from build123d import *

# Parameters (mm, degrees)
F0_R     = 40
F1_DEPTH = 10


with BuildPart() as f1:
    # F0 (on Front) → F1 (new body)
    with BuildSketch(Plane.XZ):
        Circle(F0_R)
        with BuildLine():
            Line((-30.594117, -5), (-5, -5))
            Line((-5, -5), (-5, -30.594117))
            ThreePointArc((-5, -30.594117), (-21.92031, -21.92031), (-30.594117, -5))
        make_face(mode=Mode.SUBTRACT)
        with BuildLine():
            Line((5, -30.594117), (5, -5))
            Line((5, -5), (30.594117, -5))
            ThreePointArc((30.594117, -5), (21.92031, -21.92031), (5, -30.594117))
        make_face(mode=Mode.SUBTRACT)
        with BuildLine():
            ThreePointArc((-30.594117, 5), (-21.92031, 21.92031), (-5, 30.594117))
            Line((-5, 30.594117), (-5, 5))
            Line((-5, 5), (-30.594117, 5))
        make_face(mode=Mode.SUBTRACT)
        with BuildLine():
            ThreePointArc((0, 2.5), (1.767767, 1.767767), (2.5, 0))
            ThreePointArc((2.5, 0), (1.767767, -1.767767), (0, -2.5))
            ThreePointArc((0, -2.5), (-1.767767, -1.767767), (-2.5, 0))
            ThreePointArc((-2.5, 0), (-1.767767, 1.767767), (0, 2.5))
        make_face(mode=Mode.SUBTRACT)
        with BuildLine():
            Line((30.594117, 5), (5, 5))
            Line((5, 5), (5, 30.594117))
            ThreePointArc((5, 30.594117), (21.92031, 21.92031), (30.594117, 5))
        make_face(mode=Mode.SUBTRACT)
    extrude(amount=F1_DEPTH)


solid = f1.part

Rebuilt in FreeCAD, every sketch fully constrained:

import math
import FreeCAD as App
import Part
import Sketcher

V = App.Vector

doc = App.newDocument("Part")
body = doc.addObject("PartDesign::Body", "Body")

# Sketch on XZ plane
sketch1 = body.newObject("Sketcher::SketchObject", "Sketch")
sketch1.AttachmentSupport = (doc.getObject("XZ_Plane"), [""])
sketch1.MapMode = "FlatFace"
sketch1.addGeometry(Part.Circle(V(0, 0, 0), V(0, 0, 1), 40), False)
sketch1.addGeometry(Part.ArcOfCircle(Part.Circle(V(0.000001, 0.000001, 0), V(0, 0, 1), 31.000001), math.radians(-170.7182), math.radians(-99.2818)), False)
sketch1.addGeometry(Part.LineSegment(V(-30.594117, -5, 0), V(-5, -5, 0)), False)
sketch1.addGeometry(Part.LineSegment(V(-5, -5, 0), V(-5, -30.594117, 0)), False)
sketch1.addGeometry(Part.ArcOfCircle(Part.Circle(V(0, 0, 0), V(0, 0, 1), 2.5), math.radians(89.999996), math.radians(180.000004)), False)
sketch1.addGeometry(Part.ArcOfCircle(Part.Circle(V(0, 0, 0), V(0, 0, 1), 2.5), math.radians(-0.000004), math.radians(90.000004)), False)
sketch1.addGeometry(Part.ArcOfCircle(Part.Circle(V(0, 0, 0), V(0, 0, 1), 2.5), math.radians(-90.000004), math.radians(0.000004)), False)
sketch1.addGeometry(Part.ArcOfCircle(Part.Circle(V(0, 0, 0), V(0, 0, 1), 2.5), math.radians(179.999996), math.radians(270.000004)), False)
sketch1.addGeometry(Part.ArcOfCircle(Part.Circle(V(-0.000001, 0.000001, 0), V(0, 0, 1), 31.000001), math.radians(-80.7182), math.radians(-9.2818)), False)
sketch1.addGeometry(Part.LineSegment(V(5, -30.594117, 0), V(5, -5, 0)), False)
sketch1.addGeometry(Part.LineSegment(V(5, -5, 0), V(30.594117, -5, 0)), False)
sketch1.addGeometry(Part.LineSegment(V(-5, 5, 0), V(-30.594117, 5, 0)), False)
sketch1.addGeometry(Part.ArcOfCircle(Part.Circle(V(0.000001, -0.000001, 0), V(0, 0, 1), 31.000001), math.radians(99.2818), math.radians(170.7182)), False)
sketch1.addGeometry(Part.LineSegment(V(-5, 30.594117, 0), V(-5, 5, 0)), False)
sketch1.addGeometry(Part.ArcOfCircle(Part.Circle(V(-0.000001, -0.000001, 0), V(0, 0, 1), 31.000001), math.radians(9.2818), math.radians(80.7182)), False)
sketch1.addGeometry(Part.LineSegment(V(30.594117, 5, 0), V(5, 5, 0)), False)
sketch1.addGeometry(Part.LineSegment(V(5, 5, 0), V(5, 30.594117, 0)), False)
sketch1.addConstraint(Sketcher.Constraint("Coincident", 1, 1, 2, 1))
sketch1.addConstraint(Sketcher.Constraint("Coincident", 2, 2, 3, 1))
sketch1.addConstraint(Sketcher.Constraint("Coincident", 3, 2, 1, 2))
sketch1.addConstraint(Sketcher.Constraint("Tangent", 4, 1, 5, 2))
sketch1.addConstraint(Sketcher.Constraint("Tangent", 5, 1, 6, 2))
sketch1.addConstraint(Sketcher.Constraint("Tangent", 6, 1, 7, 2))
sketch1.addConstraint(Sketcher.Constraint("Tangent", 7, 1, 4, 2))
sketch1.addConstraint(Sketcher.Constraint("Coincident", 8, 1, 9, 1))
sketch1.addConstraint(Sketcher.Constraint("Coincident", 9, 2, 10, 1))
sketch1.addConstraint(Sketcher.Constraint("Coincident", 10, 2, 8, 2))
sketch1.addConstraint(Sketcher.Constraint("Coincident", 11, 2, 12, 2))
sketch1.addConstraint(Sketcher.Constraint("Coincident", 12, 1, 13, 1))
sketch1.addConstraint(Sketcher.Constraint("Coincident", 13, 2, 11, 1))
sketch1.addConstraint(Sketcher.Constraint("Coincident", 14, 1, 15, 1))
sketch1.addConstraint(Sketcher.Constraint("Coincident", 15, 2, 16, 1))
sketch1.addConstraint(Sketcher.Constraint("Coincident", 16, 2, 14, 2))
sketch1.addConstraint(Sketcher.Constraint("Horizontal", 2))
sketch1.addConstraint(Sketcher.Constraint("Vertical", 3))
sketch1.addConstraint(Sketcher.Constraint("Vertical", 9))
sketch1.addConstraint(Sketcher.Constraint("Horizontal", 10))
sketch1.addConstraint(Sketcher.Constraint("Horizontal", 11))
sketch1.addConstraint(Sketcher.Constraint("Vertical", 13))
sketch1.addConstraint(Sketcher.Constraint("Horizontal", 15))
sketch1.addConstraint(Sketcher.Constraint("Vertical", 16))
sketch1.addConstraint(Sketcher.Constraint("Coincident", 0, 3, -1, 1))
sketch1.addConstraint(Sketcher.Constraint("Coincident", 1, 3, -1, 1))
sketch1.addConstraint(Sketcher.Constraint("Coincident", 4, 3, -1, 1))
sketch1.addConstraint(Sketcher.Constraint("Coincident", 8, 3, -1, 1))
sketch1.addConstraint(Sketcher.Constraint("Coincident", 12, 3, -1, 1))
sketch1.addConstraint(Sketcher.Constraint("Coincident", 14, 3, -1, 1))
sketch1.addConstraint(Sketcher.Constraint("Equal", 4, 5))
sketch1.addConstraint(Sketcher.Constraint("Equal", 1, 8))
sketch1.addConstraint(Sketcher.Constraint("Equal", 8, 12))
sketch1.addConstraint(Sketcher.Constraint("Equal", 12, 14))
sketch1.addConstraint(Sketcher.Constraint("Symmetric", 9, 2, 13, 2, -1, 1))
sketch1.addConstraint(Sketcher.Constraint("Symmetric", 2, 2, 15, 2, -1, 1))
sketch1.addConstraint(Sketcher.Constraint("Symmetric", 2, 2, 9, 2, -2))
sketch1.addConstraint(Sketcher.Constraint("PointOnObject", 4, 1, -2))
sketch1.addConstraint(Sketcher.Constraint("PointOnObject", 5, 1, -1))
sketch1.addConstraint(Sketcher.Constraint("PointOnObject", 6, 1, -2))
sketch1.addConstraint(Sketcher.Constraint("PointOnObject", 7, 1, -1))
sketch1.addConstraint(Sketcher.Constraint("Equal", 15, 3))
sketch1.addConstraint(Sketcher.Constraint("Diameter", 0, 80.0))
sketch1.addConstraint(Sketcher.Constraint("Radius", 1, 31.000001))
sketch1.addConstraint(Sketcher.Constraint("Radius", 4, 2.5))
sketch1.addConstraint(Sketcher.Constraint("DistanceY", 1, 1, -1, 1, 5.0))
pad1 = body.newObject("PartDesign::Pad", "Pad")
pad1.Profile = sketch1
pad1.Length = 10

doc.recompute()
